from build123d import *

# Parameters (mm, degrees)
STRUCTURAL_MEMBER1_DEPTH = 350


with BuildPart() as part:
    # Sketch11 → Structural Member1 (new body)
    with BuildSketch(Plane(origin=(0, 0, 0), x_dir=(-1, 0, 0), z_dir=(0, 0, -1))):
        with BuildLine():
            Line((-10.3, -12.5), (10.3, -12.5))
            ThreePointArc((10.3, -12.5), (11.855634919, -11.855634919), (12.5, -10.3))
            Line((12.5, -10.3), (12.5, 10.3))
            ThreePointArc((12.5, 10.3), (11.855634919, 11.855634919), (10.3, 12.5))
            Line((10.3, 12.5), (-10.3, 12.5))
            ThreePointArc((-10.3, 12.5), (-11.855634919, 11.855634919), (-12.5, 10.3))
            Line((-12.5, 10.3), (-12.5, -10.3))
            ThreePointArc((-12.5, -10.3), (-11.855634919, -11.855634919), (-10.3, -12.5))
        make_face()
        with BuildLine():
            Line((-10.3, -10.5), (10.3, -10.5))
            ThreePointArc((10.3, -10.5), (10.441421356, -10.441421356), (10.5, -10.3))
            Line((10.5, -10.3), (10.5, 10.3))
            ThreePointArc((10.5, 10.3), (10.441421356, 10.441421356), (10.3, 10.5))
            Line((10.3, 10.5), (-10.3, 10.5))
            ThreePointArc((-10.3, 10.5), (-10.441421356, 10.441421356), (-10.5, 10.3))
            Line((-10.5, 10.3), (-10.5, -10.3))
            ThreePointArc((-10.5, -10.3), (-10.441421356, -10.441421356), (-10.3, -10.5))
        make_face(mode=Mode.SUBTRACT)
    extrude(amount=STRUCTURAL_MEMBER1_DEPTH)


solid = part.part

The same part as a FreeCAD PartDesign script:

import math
import FreeCAD as App
import Part
import Sketcher
from FreeCAD import Vector

doc = App.newDocument("Part")
body = doc.addObject("PartDesign::Body", "Body")

# Sketch on XY plane
sketch1 = doc.addObject("Sketcher::SketchObject", "Sketch")
body.addObject(sketch1)
sketch1.AttachmentSupport = (doc.XY_Plane, [""])
sketch1.MapMode = "FlatFace"
sketch1.addGeometry(Part.LineSegment(Vector(10.3, -12.5, 0), Vector(-10.3, -12.5, 0)), False)
sketch1.addGeometry(Part.ArcOfCircle(Part.Circle(Vector(-10.3, -10.3, 0), Vector(0, 0, 1), 2.2), math.radians(180), math.radians(270)), False)
sketch1.addGeometry(Part.LineSegment(Vector(-12.5, -10.3, 0), Vector(-12.5, 10.3, 0)), False)
sketch1.addGeometry(Part.ArcOfCircle(Part.Circle(Vector(-10.3, 10.3, 0), Vector(0, 0, 1), 2.2), math.radians(90), math.radians(180)), False)
sketch1.addGeometry(Part.LineSegment(Vector(-10.3, 12.5, 0), Vector(10.3, 12.5, 0)), False)
sketch1.addGeometry(Part.ArcOfCircle(Part.Circle(Vector(10.3, 10.3, 0), Vector(0, 0, 1), 2.2), math.radians(0), math.radians(90)), False)
sketch1.addGeometry(Part.LineSegment(Vector(12.5, 10.3, 0), Vector(12.5, -10.3, 0)), False)
sketch1.addGeometry(Part.ArcOfCircle(Part.Circle(Vector(10.3, -10.3, 0), Vector(0, 0, 1), 2.2), math.radians(-90), math.radians(0)), False)
sketch1.addGeometry(Part.LineSegment(Vector(-10.3, -10.5, 0), Vector(10.3, -10.5, 0)), False)
sketch1.addGeometry(Part.ArcOfCircle(Part.Circle(Vector(10.3, -10.3, 0), Vector(0, 0, 1), 0.2), math.radians(-90), math.radians(0)), False)
sketch1.addGeometry(Part.LineSegment(Vector(10.5, -10.3, 0), Vector(10.5, 10.3, 0)), False)
sketch1.addGeometry(Part.ArcOfCircle(Part.Circle(Vector(10.3, 10.3, 0), Vector(0, 0, 1), 0.2), math.radians(0), math.radians(90)), False)
sketch1.addGeometry(Part.LineSegment(Vector(10.3, 10.5, 0), Vector(-10.3, 10.5, 0)), False)
sketch1.addGeometry(Part.ArcOfCircle(Part.Circle(Vector(-10.3, 10.3, 0), Vector(0, 0, 1), 0.2), math.radians(90), math.radians(180)), False)
sketch1.addGeometry(Part.LineSegment(Vector(-10.5, 10.3, 0), Vector(-10.5, -10.3, 0)), False)
sketch1.addGeometry(Part.ArcOfCircle(Part.Circle(Vector(-10.3, -10.3, 0), Vector(0, 0, 1), 0.2), math.radians(-180), math.radians(-90)), False)
sketch1.addConstraint(Sketcher.Constraint("Tangent", 0, 2, 1, 2))
sketch1.addConstraint(Sketcher.Constraint("Tangent", 1, 1, 2, 1))
sketch1.addConstraint(Sketcher.Constraint("Tangent", 2, 2, 3, 2))
sketch1.addConstraint(Sketcher.Constraint("Tangent", 3, 1, 4, 1))
sketch1.addConstraint(Sketcher.Constraint("Tangent", 4, 2, 5, 2))
sketch1.addConstraint(Sketcher.Constraint("Tangent", 5, 1, 6, 1))
sketch1.addConstraint(Sketcher.Constraint("Tangent", 6, 2, 7, 2))
sketch1.addConstraint(Sketcher.Constraint("Tangent", 7, 1, 0, 1))
sketch1.addConstraint(Sketcher.Constraint("Tangent", 8, 2, 9, 1))
sketch1.addConstraint(Sketcher.Constraint("Tangent", 9, 2, 10, 1))
sketch1.addConstraint(Sketcher.Constraint("Tangent", 10, 2, 11, 1))
sketch1.addConstraint(Sketcher.Constraint("Tangent", 11, 2, 12, 1))
sketch1.addConstraint(Sketcher.Constraint("Tangent", 12, 2, 13, 1))
sketch1.addConstraint(Sketcher.Constraint("Tangent", 13, 2, 14, 1))
sketch1.addConstraint(Sketcher.Constraint("Tangent", 14, 2, 15, 1))
sketch1.addConstraint(Sketcher.Constraint("Tangent", 15, 2, 8, 1))
sketch1.addConstraint(Sketcher.Constraint("Horizontal", 0))
sketch1.addConstraint(Sketcher.Constraint("Vertical", 2))
sketch1.addConstraint(Sketcher.Constraint("Horizontal", 4))
sketch1.addConstraint(Sketcher.Constraint("Vertical", 6))
sketch1.addConstraint(Sketcher.Constraint("Horizontal", 8))
sketch1.addConstraint(Sketcher.Constraint("Vertical", 10))
sketch1.addConstraint(Sketcher.Constraint("Horizontal", 12))
sketch1.addConstraint(Sketcher.Constraint("Vertical", 14))
sketch1.addConstraint(Sketcher.Constraint("Coincident", 9, 3, 7, 3))
sketch1.addConstraint(Sketcher.Constraint("Coincident", 11, 3, 5, 3))
sketch1.addConstraint(Sketcher.Constraint("Coincident", 13, 3, 3, 3))
sketch1.addConstraint(Sketcher.Constraint("Equal", 1, 3))
sketch1.addConstraint(Sketcher.Constraint("Equal", 3, 5))
sketch1.addConstraint(Sketcher.Constraint("Equal", 5, 7))
sketch1.addConstraint(Sketcher.Constraint("Equal", 13, 15))
sketch1.addConstraint(Sketcher.Constraint("Symmetric", 1, 3, 5, 3, -1, 1))
sketch1.addConstraint(Sketcher.Constraint("Equal", 12, 2))
sketch1.addConstraint(Sketcher.Constraint("Radius", 1, 2.2))
sketch1.addConstraint(Sketcher.Constraint("Radius", 9, 0.2))
sketch1.addConstraint(Sketcher.Constraint("DistanceX", 0, 2, 0, 1, 20.6))
pad1 = doc.addObject("PartDesign::Pad", "Pad")
body.addObject(pad1)
pad1.Profile = sketch1
pad1.Length = 350
pad1.Reversed = True

doc.recompute()
